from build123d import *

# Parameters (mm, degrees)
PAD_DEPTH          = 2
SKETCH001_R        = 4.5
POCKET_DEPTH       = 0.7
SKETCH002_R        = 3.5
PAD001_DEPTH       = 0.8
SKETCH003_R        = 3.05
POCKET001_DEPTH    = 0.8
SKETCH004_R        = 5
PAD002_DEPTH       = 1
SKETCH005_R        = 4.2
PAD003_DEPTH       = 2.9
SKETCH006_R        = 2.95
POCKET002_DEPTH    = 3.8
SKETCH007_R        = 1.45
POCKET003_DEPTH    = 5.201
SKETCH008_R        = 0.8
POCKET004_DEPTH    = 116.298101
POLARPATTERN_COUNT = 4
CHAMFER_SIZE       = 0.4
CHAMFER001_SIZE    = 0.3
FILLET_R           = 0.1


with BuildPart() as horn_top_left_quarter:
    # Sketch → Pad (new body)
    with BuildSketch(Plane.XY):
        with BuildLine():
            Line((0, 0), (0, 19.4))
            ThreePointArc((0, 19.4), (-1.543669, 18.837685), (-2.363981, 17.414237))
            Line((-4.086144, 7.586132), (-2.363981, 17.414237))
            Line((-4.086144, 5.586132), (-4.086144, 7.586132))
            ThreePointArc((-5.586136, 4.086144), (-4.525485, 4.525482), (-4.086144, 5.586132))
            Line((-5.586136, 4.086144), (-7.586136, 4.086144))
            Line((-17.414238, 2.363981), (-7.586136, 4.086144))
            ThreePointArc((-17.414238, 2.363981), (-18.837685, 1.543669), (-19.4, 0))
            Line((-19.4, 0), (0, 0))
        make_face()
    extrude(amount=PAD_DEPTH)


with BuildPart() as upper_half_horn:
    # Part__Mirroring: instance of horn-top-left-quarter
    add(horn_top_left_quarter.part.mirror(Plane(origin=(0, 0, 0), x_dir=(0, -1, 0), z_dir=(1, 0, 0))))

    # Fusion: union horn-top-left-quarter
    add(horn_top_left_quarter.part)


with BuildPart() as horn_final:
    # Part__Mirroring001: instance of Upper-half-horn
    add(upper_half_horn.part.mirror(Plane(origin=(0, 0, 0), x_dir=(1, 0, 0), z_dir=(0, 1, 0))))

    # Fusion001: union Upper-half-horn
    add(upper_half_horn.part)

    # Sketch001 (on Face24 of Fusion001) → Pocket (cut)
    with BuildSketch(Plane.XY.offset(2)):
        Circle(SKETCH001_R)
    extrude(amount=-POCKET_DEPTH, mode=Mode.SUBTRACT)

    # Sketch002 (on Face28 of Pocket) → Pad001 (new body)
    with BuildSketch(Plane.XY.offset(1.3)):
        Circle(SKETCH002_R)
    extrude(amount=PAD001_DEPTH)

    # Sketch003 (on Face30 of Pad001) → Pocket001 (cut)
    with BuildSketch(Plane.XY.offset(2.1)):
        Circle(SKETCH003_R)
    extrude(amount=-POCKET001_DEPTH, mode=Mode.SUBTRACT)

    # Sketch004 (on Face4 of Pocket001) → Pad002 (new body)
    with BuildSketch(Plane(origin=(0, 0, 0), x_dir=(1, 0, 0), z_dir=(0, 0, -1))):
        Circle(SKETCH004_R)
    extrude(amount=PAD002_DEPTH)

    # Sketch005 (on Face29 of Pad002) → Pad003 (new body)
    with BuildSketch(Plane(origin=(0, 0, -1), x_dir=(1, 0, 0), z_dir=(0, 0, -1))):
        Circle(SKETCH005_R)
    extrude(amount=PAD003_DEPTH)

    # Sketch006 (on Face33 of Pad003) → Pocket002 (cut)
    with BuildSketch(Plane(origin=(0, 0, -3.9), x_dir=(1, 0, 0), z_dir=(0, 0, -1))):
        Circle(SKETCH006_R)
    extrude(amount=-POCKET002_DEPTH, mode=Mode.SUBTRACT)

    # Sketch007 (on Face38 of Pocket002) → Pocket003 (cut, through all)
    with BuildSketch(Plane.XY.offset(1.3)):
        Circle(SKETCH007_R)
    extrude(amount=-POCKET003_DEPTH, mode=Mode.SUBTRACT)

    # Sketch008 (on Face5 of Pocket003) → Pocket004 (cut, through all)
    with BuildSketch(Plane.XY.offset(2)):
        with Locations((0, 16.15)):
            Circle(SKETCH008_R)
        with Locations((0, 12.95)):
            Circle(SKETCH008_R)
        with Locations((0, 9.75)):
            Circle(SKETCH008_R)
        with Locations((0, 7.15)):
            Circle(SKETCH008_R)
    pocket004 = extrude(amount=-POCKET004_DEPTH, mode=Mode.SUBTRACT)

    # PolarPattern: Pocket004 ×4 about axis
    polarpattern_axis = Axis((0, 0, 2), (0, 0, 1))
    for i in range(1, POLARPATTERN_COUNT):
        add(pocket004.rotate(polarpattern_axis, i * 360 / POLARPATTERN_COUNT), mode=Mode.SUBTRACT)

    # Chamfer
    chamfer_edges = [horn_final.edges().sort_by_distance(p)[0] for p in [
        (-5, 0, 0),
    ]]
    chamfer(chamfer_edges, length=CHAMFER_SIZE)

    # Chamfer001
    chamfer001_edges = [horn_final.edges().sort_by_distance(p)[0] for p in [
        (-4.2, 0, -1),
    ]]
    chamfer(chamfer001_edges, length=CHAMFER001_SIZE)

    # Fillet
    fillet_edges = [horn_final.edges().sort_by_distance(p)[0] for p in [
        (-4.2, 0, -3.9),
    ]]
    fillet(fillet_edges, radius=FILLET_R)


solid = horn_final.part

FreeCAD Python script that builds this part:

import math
import FreeCAD as App
import Part
import Sketcher

V = App.Vector
Q = App.Units.Quantity


def edges_at(feature, points):
    """Names of the edges that pass closest to the given points."""
    edges = feature.Shape.Edges
    near = lambda p: min(range(len(edges)), key=lambda i: edges[i].distToShape(Part.Vertex(*p))[0])
    return sorted({f"Edge{near(p) + 1}" for p in points})

doc = App.newDocument("Part")
body = doc.addObject("PartDesign::Body", "Body")

sketch1 = doc.addObject("Sketcher::SketchObject", "Sketch")
body.addObject(sketch1)
sketch1.AttachmentSupport = (doc.XY_Plane, [""])
sketch1.MapMode = "FlatFace"
sketch1.addGeometry(Part.LineSegment(V(0, 0, 0), V(0, 19.4, 0)), False)
sketch1.addGeometry(Part.ArcOfCircle(Part.Circle(V(0, 17.000001, 0), V(0, 0, 1), 2.399999), math.radians(89.999992), math.radians(170.061065)), False)
sketch1.addGeometry(Part.LineSegment(V(-2.363981, 17.414237, 0), V(-4.086144, 7.586132, 0)), False)
sketch1.addGeometry(Part.LineSegment(V(-4.086144, 7.586132, 0), V(-4.086144, 5.586132, 0)), False)
sketch1.addGeometry(Part.ArcOfCircle(Part.Circle(V(-5.586143, 5.586143, 0), V(0, 0, 1), 1.499999), math.radians(-89.999737), math.radians(-0.000416)), False)
sketch1.addGeometry(Part.LineSegment(V(-5.586136, 4.086144, 0), V(-7.586136, 4.086144, 0)), False)
sketch1.addGeometry(Part.LineSegment(V(-7.586136, 4.086144, 0), V(-17.414238, 2.363981, 0)), False)
sketch1.addGeometry(Part.ArcOfCircle(Part.Circle(V(-17, 0, 0), V(0, 0, 1), 2.4), math.radians(99.938966), math.radians(180.000005)), False)
sketch1.addGeometry(Part.LineSegment(V(-19.4, 0, 0), V(0, 0, 0)), False)
sketch1.addConstraint(Sketcher.Constraint("Coincident", 0, 2, 1, 1))
sketch1.addConstraint(Sketcher.Constraint("Coincident", 1, 2, 2, 1))
sketch1.addConstraint(Sketcher.Constraint("Coincident", 2, 2, 3, 1))
sketch1.addConstraint(Sketcher.Constraint("Coincident", 3, 2, 4, 2))
sketch1.addConstraint(Sketcher.Constraint("Coincident", 4, 1, 5, 1))
sketch1.addConstraint(Sketcher.Constraint("Coincident", 5, 2, 6, 1))
sketch1.addConstraint(Sketcher.Constraint("Coincident", 6, 2, 7, 1))
sketch1.addConstraint(Sketcher.Constraint("Coincident", 7, 2, 8, 1))
sketch1.addConstraint(Sketcher.Constraint("Coincident", 8, 2, 0, 1))
sketch1.addConstraint(Sketcher.Constraint("Vertical", 0))
sketch1.addConstraint(Sketcher.Constraint("Vertical", 3))
sketch1.addConstraint(Sketcher.Constraint("Horizontal", 5))
sketch1.addConstraint(Sketcher.Constraint("Horizontal", 8))
sketch1.addConstraint(Sketcher.Constraint("Coincident", 8, 2, -1, 1))
sketch1.addConstraint(Sketcher.Constraint("PointOnObject", 1, 3, -2))
sketch1.addConstraint(Sketcher.Constraint("PointOnObject", 7, 3, -1))
sketch1.addConstraint(Sketcher.Constraint("Radius", 1, Q("2.399999 mm")))
sketch1.addConstraint(Sketcher.Constraint("Radius", 4, Q("1.499999 mm")))
sketch1.addConstraint(Sketcher.Constraint("Radius", 7, Q("2.4 mm")))
sketch1.addConstraint(Sketcher.Constraint("DistanceX", 5, 2, 5, 1, Q("2 mm")))
sketch1.addConstraint(Sketcher.Constraint("DistanceY", 3, 2, 3, 1, Q("2 mm")))
sketch1.addConstraint(Sketcher.Constraint("DistanceX", 8, 1, 8, 2, Q("19.4 mm")))
sketch1.addConstraint(Sketcher.Constraint("DistanceY", 0, 1, 0, 2, Q("19.4 mm")))
sketch1.addConstraint(Sketcher.Constraint("Distance", 2, Q("9.97785 mm")))
sketch1.addConstraint(Sketcher.Constraint("DistanceX", 1, 2, -1, 1, Q("2.363981 mm")))
sketch1.addConstraint(Sketcher.Constraint("DistanceX", 6, 2, -1, 1, Q("17.414238 mm")))
sketch1.addConstraint(Sketcher.Constraint("DistanceX", 4, 3, 1, 2, Q("3.222162 mm")))
sketch1.addConstraint(Sketcher.Constraint("DistanceY", 4, 3, 2, 2, Q("1.999989 mm")))
sketch1.addConstraint(Sketcher.Constraint("DistanceX", 4, 1, 3, 2, Q("1.499992 mm")))
pad1 = doc.addObject("PartDesign::Pad", "Pad")
body.addObject(pad1)
pad1.Profile = sketch1
pad1.Length = 2
body2 = doc.addObject("PartDesign::Body", "Body001")
doc.recompute()

mirroring = doc.addObject("Part::Mirroring", "Mirroring")
mirroring.Source = body
mirroring.Base = V(0, 0, 0)
mirroring.Normal = V(1, 0, 0)
body2.BaseFeature = mirroring
doc.recompute()

boolean = doc.addObject("PartDesign::Boolean", "Boolean")
body2.addObject(boolean)
boolean.Type = "Fuse"
boolean.addObjects([body])
body3 = doc.addObject("PartDesign::Body", "Body002")
doc.recompute()

mirroring2 = doc.addObject("Part::Mirroring", "Mirroring001")
mirroring2.Source = body2
mirroring2.Base = V(0, 0, 0)
mirroring2.Normal = V(0, 1, 0)
body3.BaseFeature = mirroring2
doc.recompute()

boolean2 = doc.addObject("PartDesign::Boolean", "Boolean001")
body3.addObject(boolean2)
boolean2.Type = "Fuse"
boolean2.addObjects([body2])

sketch2 = doc.addObject("Sketcher::SketchObject", "Sketch001")
body3.addObject(sketch2)
sketch2.AttachmentSupport = (doc.getObject("XY_Plane002"), [""])
sketch2.MapMode = "FlatFace"
sketch2.AttachmentOffset = App.Placement(V(0, 0, 2), App.Rotation())
sketch2.addGeometry(Part.Circle(V(0, 0, 0), V(0, 0, 1), 4.5), False)
sketch2.addConstraint(Sketcher.Constraint("Coincident", 0, 3, -1, 1))
sketch2.addConstraint(Sketcher.Constraint("Diameter", 0, Q("9 mm")))
pocket1 = doc.addObject("PartDesign::Pocket", "Pocket")
body3.addObject(pocket1)
pocket1.Profile = sketch2
pocket1.Length = 0.7

sketch3 = doc.addObject("Sketcher::SketchObject", "Sketch002")
body3.addObject(sketch3)
sketch3.AttachmentSupport = (doc.getObject("XY_Plane002"), [""])
sketch3.MapMode = "FlatFace"
sketch3.AttachmentOffset = App.Placement(V(0, 0, 1.3), App.Rotation())
sketch3.addGeometry(Part.Circle(V(0, 0, 0), V(0, 0, 1), 3.5), False)
sketch3.addConstraint(Sketcher.Constraint("Coincident", 0, 3, -1, 1))
sketch3.addConstraint(Sketcher.Constraint("Diameter", 0, Q("7 mm")))
pad2 = doc.addObject("PartDesign::Pad", "Pad001")
body3.addObject(pad2)
pad2.Profile = sketch3
pad2.Length = 0.8

sketch4 = doc.addObject("Sketcher::SketchObject", "Sketch003")
body3.addObject(sketch4)
sketch4.AttachmentSupport = (doc.getObject("XY_Plane002"), [""])
sketch4.MapMode = "FlatFace"
sketch4.AttachmentOffset = App.Placement(V(0, 0, 2.1), App.Rotation())
sketch4.addGeometry(Part.Circle(V(0, 0, 0), V(0, 0, 1), 3.05), False)
sketch4.addConstraint(Sketcher.Constraint("Coincident", 0, 3, -1, 1))
sketch4.addConstraint(Sketcher.Constraint("Diameter", 0, Q("6.1 mm")))
pocket2 = doc.addObject("PartDesign::Pocket", "Pocket001")
body3.addObject(pocket2)
pocket2.Profile = sketch4
pocket2.Length = 0.8

sketch5 = doc.addObject("Sketcher::SketchObject", "Sketch004")
body3.addObject(sketch5)
sketch5.AttachmentSupport = (doc.getObject("XY_Plane002"), [""])
sketch5.MapMode = "FlatFace"
sketch5.addGeometry(Part.Circle(V(0, 0, 0), V(0, 0, 1), 5), False)
sketch5.addConstraint(Sketcher.Constraint("Coincident", 0, 3, -1, 1))
sketch5.addConstraint(Sketcher.Constraint("Diameter", 0, Q("10 mm")))
pad3 = doc.addObject("PartDesign::Pad", "Pad002")
body3.addObject(pad3)
pad3.Profile = sketch5
pad3.Length = 1
pad3.Reversed = True

sketch6 = doc.addObject("Sketcher::SketchObject", "Sketch005")
body3.addObject(sketch6)
sketch6.AttachmentSupport = (doc.getObject("XY_Plane002"), [""])
sketch6.MapMode = "FlatFace"
sketch6.AttachmentOffset = App.Placement(V(0, 0, -1), App.Rotation())
sketch6.addGeometry(Part.Circle(V(0, 0, 0), V(0, 0, 1), 4.2), False)
sketch6.addConstraint(Sketcher.Constraint("Coincident", 0, 3, -1, 1))
sketch6.addConstraint(Sketcher.Constraint("Diameter", 0, Q("8.4 mm")))
pad4 = doc.addObject("PartDesign::Pad", "Pad003")
body3.addObject(pad4)
pad4.Profile = sketch6
pad4.Length = 2.9
pad4.Reversed = True

sketch7 = doc.addObject("Sketcher::SketchObject", "Sketch006")
body3.addObject(sketch7)
sketch7.AttachmentSupport = (doc.getObject("XY_Plane002"), [""])
sketch7.MapMode = "FlatFace"
sketch7.AttachmentOffset = App.Placement(V(0, 0, -3.9), App.Rotation())
sketch7.addGeometry(Part.Circle(V(0, 0, 0), V(0, 0, 1), 2.95), False)
sketch7.addConstraint(Sketcher.Constraint("Coincident", 0, 3, -1, 1))
sketch7.addConstraint(Sketcher.Constraint("Diameter", 0, Q("5.9 mm")))
pocket3 = doc.addObject("PartDesign::Pocket", "Pocket002")
body3.addObject(pocket3)
pocket3.Profile = sketch7
pocket3.Length = 3.8
pocket3.Reversed = True

sketch8 = doc.addObject("Sketcher::SketchObject", "Sketch007")
body3.addObject(sketch8)
sketch8.AttachmentSupport = (doc.getObject("XY_Plane002"), [""])
sketch8.MapMode = "FlatFace"
sketch8.AttachmentOffset = App.Placement(V(0, 0, 1.3), App.Rotation())
sketch8.addGeometry(Part.Circle(V(0, 0, 0), V(0, 0, 1), 1.45), False)
sketch8.addConstraint(Sketcher.Constraint("Coincident", 0, 3, -1, 1))
sketch8.addConstraint(Sketcher.Constraint("Diameter", 0, Q("2.9 mm")))
pocket4 = doc.addObject("PartDesign::Pocket", "Pocket003")
body3.addObject(pocket4)
pocket4.Profile = sketch8
pocket4.Type = "ThroughAll"

sketch9 = doc.addObject("Sketcher::SketchObject", "Sketch008")
body3.addObject(sketch9)
sketch9.AttachmentSupport = (doc.getObject("XY_Plane002"), [""])
sketch9.MapMode = "FlatFace"
sketch9.AttachmentOffset = App.Placement(V(0, 0, 2), App.Rotation())
sketch9.addGeometry(Part.Circle(V(0, 16.15, 0), V(0, 0, 1), 0.8), False)
sketch9.addGeometry(Part.Circle(V(0, 12.95, 0), V(0, 0, 1), 0.8), False)
sketch9.addGeometry(Part.Circle(V(0, 9.75, 0), V(0, 0, 1), 0.8), False)
sketch9.addGeometry(Part.Circle(V(0, 7.15, 0), V(0, 0, 1), 0.8), False)
sketch9.addConstraint(Sketcher.Constraint("Equal", 0, 1))
sketch9.addConstraint(Sketcher.Constraint("Equal", 1, 2))
sketch9.addConstraint(Sketcher.Constraint("Equal", 2, 3))
sketch9.addConstraint(Sketcher.Constraint("PointOnObject", 0, 3, -2))
sketch9.addConstraint(Sketcher.Constraint("PointOnObject", 1, 3, -2))
sketch9.addConstraint(Sketcher.Constraint("PointOnObject", 2, 3, -2))
sketch9.addConstraint(Sketcher.Constraint("PointOnObject", 3, 3, -2))
sketch9.addConstraint(Sketcher.Constraint("Diameter", 0, Q("1.6 mm")))
sketch9.addConstraint(Sketcher.Constraint("DistanceY", 3, 3, 0, 3, Q("9 mm")))
sketch9.addConstraint(Sketcher.Constraint("DistanceY", 1, 3, 0, 3, Q("3.2 mm")))
sketch9.addConstraint(Sketcher.Constraint("DistanceY", 2, 3, 1, 3, Q("3.2 mm")))
sketch9.addConstraint(Sketcher.Constraint("DistanceY", -1, 1, 0, 3, Q("16.15 mm")))
pocket5 = doc.addObject("PartDesign::Pocket", "Pocket004")
body3.addObject(pocket5)
pocket5.Profile = sketch9
pocket5.Type = "ThroughAll"
doc.recompute()

polarpattern = doc.addObject("PartDesign::PolarPattern", "PolarPattern")
body3.addObject(polarpattern)
polarpattern.Originals = [pocket5]
polarpattern.Axis = (doc.getObject("Z_Axis002"), [""])
polarpattern.Angle = 360
polarpattern.Occurrences = 4
body3.Tip = polarpattern
doc.recompute()

chamfer = doc.addObject("PartDesign::Chamfer", "Chamfer")
body3.addObject(chamfer)
chamfer.Base = (polarpattern, edges_at(polarpattern, [(-5, 0, 0)]))
chamfer.Size = 0.4
doc.recompute()

chamfer2 = doc.addObject("PartDesign::Chamfer", "Chamfer001")
body3.addObject(chamfer2)
chamfer2.Base = (chamfer, edges_at(chamfer, [(-4.2, 0, -1)]))
chamfer2.Size = 0.3
doc.recompute()

fillet = doc.addObject("PartDesign::Fillet", "Fillet")
body3.addObject(fillet)
fillet.Base = (chamfer2, edges_at(chamfer2, [(-4.2, 0, -3.9)]))
fillet.Radius = 0.1
mirroring.Visibility = False
mirroring2.Visibility = False

doc.recompute()
